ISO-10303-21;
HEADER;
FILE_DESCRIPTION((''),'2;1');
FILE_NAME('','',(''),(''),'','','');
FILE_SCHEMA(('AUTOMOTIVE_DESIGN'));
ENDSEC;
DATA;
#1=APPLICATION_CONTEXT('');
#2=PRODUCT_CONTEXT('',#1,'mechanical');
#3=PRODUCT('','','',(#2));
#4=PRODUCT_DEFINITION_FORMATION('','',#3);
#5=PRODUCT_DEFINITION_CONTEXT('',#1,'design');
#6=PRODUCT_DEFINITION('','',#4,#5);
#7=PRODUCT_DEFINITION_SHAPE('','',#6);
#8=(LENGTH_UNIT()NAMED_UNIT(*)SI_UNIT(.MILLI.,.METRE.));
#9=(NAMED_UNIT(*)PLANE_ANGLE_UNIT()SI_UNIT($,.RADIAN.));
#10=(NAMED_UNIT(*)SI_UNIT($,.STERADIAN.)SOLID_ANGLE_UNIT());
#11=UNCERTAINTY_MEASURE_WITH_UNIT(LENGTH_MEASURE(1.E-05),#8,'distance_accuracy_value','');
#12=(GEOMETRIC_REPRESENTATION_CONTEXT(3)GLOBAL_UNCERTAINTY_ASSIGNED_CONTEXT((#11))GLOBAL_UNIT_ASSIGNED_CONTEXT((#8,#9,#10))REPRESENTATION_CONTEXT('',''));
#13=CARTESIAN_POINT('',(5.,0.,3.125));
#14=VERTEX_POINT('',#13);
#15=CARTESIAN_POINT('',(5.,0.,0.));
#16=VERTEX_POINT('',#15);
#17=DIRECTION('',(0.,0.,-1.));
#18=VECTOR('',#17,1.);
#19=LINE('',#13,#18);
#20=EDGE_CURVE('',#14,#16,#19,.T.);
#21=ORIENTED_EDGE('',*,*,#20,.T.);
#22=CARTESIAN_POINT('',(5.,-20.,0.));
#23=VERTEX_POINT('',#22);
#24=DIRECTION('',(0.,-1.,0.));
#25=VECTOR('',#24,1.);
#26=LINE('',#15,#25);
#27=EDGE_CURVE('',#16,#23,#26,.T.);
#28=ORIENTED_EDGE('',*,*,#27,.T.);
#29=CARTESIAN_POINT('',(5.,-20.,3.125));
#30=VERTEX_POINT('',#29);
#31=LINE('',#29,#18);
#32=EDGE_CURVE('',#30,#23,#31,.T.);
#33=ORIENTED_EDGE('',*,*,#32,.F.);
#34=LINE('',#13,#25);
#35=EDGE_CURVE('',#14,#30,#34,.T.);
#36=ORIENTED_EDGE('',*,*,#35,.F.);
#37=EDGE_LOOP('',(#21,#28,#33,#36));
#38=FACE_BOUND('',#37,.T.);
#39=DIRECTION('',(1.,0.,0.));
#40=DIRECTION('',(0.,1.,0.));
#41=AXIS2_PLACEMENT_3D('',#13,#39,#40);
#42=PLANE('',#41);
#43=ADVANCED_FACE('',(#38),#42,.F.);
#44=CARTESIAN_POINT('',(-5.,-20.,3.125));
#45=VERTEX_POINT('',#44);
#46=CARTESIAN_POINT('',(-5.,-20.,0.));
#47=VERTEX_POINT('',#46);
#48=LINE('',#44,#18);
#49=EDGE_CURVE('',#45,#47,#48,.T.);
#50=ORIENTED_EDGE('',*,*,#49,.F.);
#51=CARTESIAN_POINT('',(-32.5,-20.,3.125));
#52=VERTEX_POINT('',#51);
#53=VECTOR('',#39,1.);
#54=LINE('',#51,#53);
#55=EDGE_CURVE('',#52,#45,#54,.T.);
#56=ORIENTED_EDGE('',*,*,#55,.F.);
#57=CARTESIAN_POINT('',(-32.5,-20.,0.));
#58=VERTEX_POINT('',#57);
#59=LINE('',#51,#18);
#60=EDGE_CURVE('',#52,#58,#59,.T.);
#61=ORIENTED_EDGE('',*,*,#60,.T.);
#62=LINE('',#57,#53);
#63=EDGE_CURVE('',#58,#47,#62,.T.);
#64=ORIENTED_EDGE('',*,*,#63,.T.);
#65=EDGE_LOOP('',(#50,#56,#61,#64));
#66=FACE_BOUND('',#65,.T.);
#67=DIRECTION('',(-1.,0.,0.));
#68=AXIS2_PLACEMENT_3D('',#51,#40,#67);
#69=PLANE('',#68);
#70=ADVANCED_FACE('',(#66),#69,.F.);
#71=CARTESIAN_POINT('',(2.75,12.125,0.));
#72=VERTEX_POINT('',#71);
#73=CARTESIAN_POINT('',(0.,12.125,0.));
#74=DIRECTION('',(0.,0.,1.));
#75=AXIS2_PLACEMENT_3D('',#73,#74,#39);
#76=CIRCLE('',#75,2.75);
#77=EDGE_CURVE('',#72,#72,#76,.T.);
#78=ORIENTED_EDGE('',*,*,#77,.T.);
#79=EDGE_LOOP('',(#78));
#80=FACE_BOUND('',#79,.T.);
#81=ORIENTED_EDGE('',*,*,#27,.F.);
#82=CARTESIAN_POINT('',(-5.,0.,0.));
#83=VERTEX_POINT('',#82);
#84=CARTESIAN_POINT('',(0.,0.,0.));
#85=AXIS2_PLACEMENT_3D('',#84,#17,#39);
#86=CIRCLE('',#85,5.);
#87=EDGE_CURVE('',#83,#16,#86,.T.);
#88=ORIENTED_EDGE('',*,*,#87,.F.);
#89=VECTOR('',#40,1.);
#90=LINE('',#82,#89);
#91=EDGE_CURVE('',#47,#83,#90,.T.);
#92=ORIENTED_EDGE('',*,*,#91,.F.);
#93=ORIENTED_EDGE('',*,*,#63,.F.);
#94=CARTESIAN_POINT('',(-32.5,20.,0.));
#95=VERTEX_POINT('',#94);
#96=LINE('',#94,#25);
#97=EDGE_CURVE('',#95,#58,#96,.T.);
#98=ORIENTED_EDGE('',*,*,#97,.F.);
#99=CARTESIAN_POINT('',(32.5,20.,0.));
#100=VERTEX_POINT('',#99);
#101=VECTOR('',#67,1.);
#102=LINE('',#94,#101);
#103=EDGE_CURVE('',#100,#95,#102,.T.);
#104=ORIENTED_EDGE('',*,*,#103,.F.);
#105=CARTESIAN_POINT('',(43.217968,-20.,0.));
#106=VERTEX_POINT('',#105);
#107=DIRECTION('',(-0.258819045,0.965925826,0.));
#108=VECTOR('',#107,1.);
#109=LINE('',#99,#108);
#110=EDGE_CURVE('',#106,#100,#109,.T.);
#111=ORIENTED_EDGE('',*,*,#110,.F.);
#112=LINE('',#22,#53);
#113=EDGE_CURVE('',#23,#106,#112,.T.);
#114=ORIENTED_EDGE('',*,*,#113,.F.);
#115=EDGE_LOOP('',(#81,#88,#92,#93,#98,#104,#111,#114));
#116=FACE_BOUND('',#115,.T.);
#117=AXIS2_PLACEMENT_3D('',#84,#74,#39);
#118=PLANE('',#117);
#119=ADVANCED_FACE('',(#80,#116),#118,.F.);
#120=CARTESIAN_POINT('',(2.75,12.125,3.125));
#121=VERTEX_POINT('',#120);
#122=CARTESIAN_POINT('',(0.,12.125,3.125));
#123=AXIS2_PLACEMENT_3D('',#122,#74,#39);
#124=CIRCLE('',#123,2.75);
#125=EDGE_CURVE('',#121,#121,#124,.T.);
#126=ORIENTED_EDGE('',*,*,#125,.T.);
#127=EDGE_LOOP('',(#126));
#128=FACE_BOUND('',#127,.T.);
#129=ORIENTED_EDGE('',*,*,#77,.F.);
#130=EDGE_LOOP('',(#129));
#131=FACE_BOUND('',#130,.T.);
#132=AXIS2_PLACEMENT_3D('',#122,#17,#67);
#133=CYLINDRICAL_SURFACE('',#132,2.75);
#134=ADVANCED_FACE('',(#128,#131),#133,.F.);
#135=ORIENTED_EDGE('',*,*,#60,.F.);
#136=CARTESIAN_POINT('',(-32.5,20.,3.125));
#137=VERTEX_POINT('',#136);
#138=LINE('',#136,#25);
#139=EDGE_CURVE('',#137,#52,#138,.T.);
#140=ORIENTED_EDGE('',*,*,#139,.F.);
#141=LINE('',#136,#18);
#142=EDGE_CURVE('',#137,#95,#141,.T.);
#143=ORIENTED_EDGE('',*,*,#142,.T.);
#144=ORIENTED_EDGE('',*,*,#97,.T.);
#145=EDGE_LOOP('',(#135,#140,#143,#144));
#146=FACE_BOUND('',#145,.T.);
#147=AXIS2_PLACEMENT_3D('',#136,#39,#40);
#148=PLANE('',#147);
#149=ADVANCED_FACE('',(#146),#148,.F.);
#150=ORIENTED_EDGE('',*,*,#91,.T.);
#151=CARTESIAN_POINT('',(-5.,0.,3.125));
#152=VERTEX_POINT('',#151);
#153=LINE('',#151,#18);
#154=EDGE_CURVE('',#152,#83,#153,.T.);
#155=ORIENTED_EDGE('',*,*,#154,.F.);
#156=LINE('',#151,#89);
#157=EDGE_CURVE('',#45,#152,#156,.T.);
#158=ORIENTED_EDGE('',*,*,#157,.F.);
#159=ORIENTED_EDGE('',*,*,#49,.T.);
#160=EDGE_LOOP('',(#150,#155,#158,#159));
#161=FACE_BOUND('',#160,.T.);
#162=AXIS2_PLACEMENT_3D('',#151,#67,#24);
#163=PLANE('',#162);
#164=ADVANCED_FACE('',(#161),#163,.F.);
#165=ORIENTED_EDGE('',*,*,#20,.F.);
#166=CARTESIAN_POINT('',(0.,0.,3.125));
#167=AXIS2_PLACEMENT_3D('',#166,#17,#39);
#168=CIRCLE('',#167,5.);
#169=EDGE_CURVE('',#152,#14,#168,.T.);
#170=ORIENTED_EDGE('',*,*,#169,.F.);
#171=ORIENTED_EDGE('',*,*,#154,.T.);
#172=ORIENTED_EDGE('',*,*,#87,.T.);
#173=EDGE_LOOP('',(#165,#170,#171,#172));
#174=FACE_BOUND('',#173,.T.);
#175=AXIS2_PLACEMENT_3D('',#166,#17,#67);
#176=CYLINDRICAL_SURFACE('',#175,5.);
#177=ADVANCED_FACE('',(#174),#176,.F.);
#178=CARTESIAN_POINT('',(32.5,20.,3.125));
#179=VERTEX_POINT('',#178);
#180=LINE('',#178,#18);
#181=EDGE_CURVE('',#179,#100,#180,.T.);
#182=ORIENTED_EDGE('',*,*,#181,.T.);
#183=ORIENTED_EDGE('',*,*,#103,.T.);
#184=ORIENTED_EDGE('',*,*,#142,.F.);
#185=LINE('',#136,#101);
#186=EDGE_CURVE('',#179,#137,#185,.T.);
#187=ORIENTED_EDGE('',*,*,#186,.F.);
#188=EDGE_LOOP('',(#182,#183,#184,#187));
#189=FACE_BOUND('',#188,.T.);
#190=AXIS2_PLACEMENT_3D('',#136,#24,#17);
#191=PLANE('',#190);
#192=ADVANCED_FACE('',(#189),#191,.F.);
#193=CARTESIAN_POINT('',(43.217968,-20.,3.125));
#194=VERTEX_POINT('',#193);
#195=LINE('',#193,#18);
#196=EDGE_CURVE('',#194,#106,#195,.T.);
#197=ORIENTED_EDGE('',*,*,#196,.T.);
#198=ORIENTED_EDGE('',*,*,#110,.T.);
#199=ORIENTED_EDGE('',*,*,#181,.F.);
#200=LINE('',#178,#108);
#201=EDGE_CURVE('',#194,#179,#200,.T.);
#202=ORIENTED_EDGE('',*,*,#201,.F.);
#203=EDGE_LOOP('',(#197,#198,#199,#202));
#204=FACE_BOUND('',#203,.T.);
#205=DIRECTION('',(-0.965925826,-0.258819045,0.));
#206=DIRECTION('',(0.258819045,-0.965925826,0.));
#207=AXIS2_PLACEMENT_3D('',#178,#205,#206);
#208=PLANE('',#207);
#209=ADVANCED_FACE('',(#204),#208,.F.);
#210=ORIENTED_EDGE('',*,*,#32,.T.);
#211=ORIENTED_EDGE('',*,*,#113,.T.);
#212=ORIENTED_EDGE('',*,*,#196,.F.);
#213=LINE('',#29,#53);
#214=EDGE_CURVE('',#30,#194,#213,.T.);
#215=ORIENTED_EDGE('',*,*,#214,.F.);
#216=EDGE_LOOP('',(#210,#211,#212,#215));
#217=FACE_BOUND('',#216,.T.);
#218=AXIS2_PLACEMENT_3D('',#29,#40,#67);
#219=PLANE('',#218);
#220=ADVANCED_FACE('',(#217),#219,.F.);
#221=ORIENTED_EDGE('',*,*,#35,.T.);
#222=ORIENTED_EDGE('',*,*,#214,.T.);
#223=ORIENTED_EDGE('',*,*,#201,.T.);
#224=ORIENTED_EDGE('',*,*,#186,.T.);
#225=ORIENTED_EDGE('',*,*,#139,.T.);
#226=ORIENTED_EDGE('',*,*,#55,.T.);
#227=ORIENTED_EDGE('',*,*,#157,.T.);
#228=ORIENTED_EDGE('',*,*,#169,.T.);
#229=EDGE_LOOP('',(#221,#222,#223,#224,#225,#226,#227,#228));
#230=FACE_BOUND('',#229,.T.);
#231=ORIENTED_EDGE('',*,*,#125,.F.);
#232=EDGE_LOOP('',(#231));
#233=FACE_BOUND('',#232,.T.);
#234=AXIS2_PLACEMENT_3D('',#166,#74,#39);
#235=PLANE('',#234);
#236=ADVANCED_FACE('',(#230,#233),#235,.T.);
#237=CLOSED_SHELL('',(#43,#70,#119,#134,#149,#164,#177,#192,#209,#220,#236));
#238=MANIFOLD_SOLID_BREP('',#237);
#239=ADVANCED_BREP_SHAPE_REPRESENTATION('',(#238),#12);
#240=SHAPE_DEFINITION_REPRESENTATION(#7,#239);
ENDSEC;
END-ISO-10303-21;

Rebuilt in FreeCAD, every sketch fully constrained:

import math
import FreeCAD as App
import Part
import Sketcher
from FreeCAD import Vector
Q = App.Units.Quantity

doc = App.newDocument("Part")
params = doc.addObject("Spreadsheet::Sheet", "Params")
for row, (alias, value) in enumerate([
    ("sketch1_radius", "5 mm"),
    ("sketch1_diameter", "5.5 mm"),
    ("sketch1_width", "65 mm"),
    ("sketch1_height", "40 mm"),
    ("pad1_length", "3.125 mm"),
], start=1):
    params.set(f"A{row}", alias)
    params.set(f"B{row}", "=" + value)
    params.setAlias(f"B{row}", alias)

body = doc.addObject("PartDesign::Body", "Body")

sketch1 = body.newObject("Sketcher::SketchObject", "Sketch")
sketch1.AttachmentSupport = (doc.getObject("XY_Plane"), [""])
sketch1.MapMode = "FlatFace"
sketch1.addGeometry([
    Part.LineSegment(Vector(32.5, 20, 0), Vector(-32.5, 20, 0)),
    Part.LineSegment(Vector(-32.5, 20, 0), Vector(-32.5, -20, 0)),
    Part.LineSegment(Vector(-32.5, -20, 0), Vector(-5, -20, 0)),
    Part.LineSegment(Vector(-5, -20, 0), Vector(-5, 0, 0)),
    Part.ArcOfCircle(Part.Circle(Vector(0, 0, 0), Vector(0, 0, 1), 5), math.radians(0), math.radians(180)),
    Part.LineSegment(Vector(5, 0, 0), Vector(5, -20, 0)),
    Part.LineSegment(Vector(5, -20, 0), Vector(43.2, -20, 0)),
    Part.LineSegment(Vector(43.2, -20, 0), Vector(32.5, 20, 0)),
    Part.Circle(Vector(0, 12.1, 0), Vector(0, 0, 1), 2.8),
], False)
sketch1.addConstraint([
    Sketcher.Constraint("Coincident", 0, 2, 1, 1),
    Sketcher.Constraint("Coincident", 1, 2, 2, 1),
    Sketcher.Constraint("Coincident", 2, 2, 3, 1),
    Sketcher.Constraint("Tangent", 3, 2, 4, 2),
    Sketcher.Constraint("Tangent", 4, 1, 5, 1),
    Sketcher.Constraint("Coincident", 5, 2, 6, 1),
    Sketcher.Constraint("Coincident", 6, 2, 7, 1),
    Sketcher.Constraint("Coincident", 7, 2, 0, 1),
    Sketcher.Constraint("Horizontal", 0),
    Sketcher.Constraint("Vertical", 1),
    Sketcher.Constraint("Horizontal", 2),
    Sketcher.Constraint("Vertical", 3),
    Sketcher.Constraint("Vertical", 5),
    Sketcher.Constraint("Horizontal", 6),
    Sketcher.Constraint("Coincident", 4, 3, -1, 1),
    Sketcher.Constraint("Symmetric", 1, 2, 7, 2, -1, 1),
    Sketcher.Constraint("PointOnObject", 8, 3, -2),
    Sketcher.Constraint("Horizontal", 2, 2, 5, 2),
    Sketcher.Constraint("Radius", 4, Q("5 mm")),
    Sketcher.Constraint("Diameter", 8, Q("5.5 mm")),
    Sketcher.Constraint("DistanceX", 0, 2, 0, 1, Q("65 mm")),
    Sketcher.Constraint("DistanceY", 1, 2, 1, 1, Q("40 mm")),
    Sketcher.Constraint("Angle", 7, Q("105 deg")),
    Sketcher.Constraint("DistanceY", -1, 1, 8, 3, Q("12.125 mm")),
])
sketch1.setExpression("Constraints[18]", "Params.sketch1_radius")
sketch1.setExpression("Constraints[19]", "Params.sketch1_diameter")
sketch1.setExpression("Constraints[20]", "Params.sketch1_width")
sketch1.setExpression("Constraints[21]", "Params.sketch1_height")
pad1 = body.newObject("PartDesign::Pad", "Pad")
pad1.Profile = sketch1
pad1.setExpression("Length", "Params.pad1_length")

doc.recompute()
